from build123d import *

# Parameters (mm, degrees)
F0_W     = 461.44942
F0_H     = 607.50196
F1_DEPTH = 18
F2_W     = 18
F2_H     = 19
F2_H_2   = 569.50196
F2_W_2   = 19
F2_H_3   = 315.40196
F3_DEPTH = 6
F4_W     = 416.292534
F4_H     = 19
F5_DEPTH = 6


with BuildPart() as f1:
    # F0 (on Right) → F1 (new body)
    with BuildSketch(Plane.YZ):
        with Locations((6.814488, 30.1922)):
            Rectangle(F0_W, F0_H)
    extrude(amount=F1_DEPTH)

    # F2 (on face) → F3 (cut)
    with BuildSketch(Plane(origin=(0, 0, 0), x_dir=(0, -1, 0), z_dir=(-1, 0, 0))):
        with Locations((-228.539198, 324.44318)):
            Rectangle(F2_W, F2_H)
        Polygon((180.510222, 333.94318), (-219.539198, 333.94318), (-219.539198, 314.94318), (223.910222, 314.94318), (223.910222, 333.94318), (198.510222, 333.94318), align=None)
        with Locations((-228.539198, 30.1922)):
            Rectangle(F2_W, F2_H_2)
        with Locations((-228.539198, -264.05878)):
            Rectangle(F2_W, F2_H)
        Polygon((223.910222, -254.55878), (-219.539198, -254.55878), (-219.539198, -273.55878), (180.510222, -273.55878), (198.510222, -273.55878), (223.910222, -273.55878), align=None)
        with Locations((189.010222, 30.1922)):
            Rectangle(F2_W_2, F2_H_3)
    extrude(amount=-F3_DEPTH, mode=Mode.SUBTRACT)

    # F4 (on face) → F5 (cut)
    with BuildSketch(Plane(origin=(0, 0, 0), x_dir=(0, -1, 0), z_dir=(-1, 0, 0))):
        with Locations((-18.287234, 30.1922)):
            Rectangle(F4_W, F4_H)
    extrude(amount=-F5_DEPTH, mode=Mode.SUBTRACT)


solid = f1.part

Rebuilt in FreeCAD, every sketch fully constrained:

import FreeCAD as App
import Part
import Sketcher
Q = App.Units.Quantity


def add_polygon(sketch, points):
    """Adds a closed chain of lines whose ends are joined by coincident constraints."""
    first, n = sketch.GeometryCount, len(points)
    for a, b in zip(points, points[1:] + points[:1]):
        sketch.addGeometry(Part.LineSegment(App.Vector(*a, 0), App.Vector(*b, 0)), False)
    for i in range(n):
        sketch.addConstraint(Sketcher.Constraint("Coincident", first + i, 2, first + (i + 1) % n, 1))

doc = App.newDocument("Part")
body = doc.addObject("PartDesign::Body", "Body")

# Sketch on YZ plane
sketch1 = doc.addObject("Sketcher::SketchObject", "Sketch")
body.addObject(sketch1)
sketch1.AttachmentSupport = (doc.YZ_Plane, [""])
sketch1.MapMode = "FlatFace"
add_polygon(sketch1, [(-224, 334), (-224, -274), (238, -274), (238, 334)])  # lines 0-3
sketch1.addConstraint(Sketcher.Constraint("Vertical", 0))
sketch1.addConstraint(Sketcher.Constraint("Horizontal", 1))
sketch1.addConstraint(Sketcher.Constraint("Vertical", 2))
sketch1.addConstraint(Sketcher.Constraint("Horizontal", 3))
sketch1.addConstraint(Sketcher.Constraint("DistanceX", 1, 1, 1, 2, Q("461.44942 mm")))
sketch1.addConstraint(Sketcher.Constraint("DistanceY", 0, 2, 0, 1, Q("607.50196 mm")))
sketch1.addConstraint(Sketcher.Constraint("DistanceX", -1, 1, 1, 2, Q("237.539198 mm")))
sketch1.addConstraint(Sketcher.Constraint("DistanceY", 0, 2, -1, 1, Q("273.55878 mm")))
pad1 = doc.addObject("PartDesign::Pad", "Pad")
body.addObject(pad1)
pad1.Profile = sketch1
pad1.Length = 18

# Sketch on YZ plane
sketch2 = doc.addObject("Sketcher::SketchObject", "Sketch001")
body.addObject(sketch2)
sketch2.AttachmentSupport = (doc.YZ_Plane, [""])
sketch2.MapMode = "FlatFace"
add_polygon(sketch2, [(238, 334), (238, -274), (-224, -274), (-224, -255), (220, -255), (220, 315), (-224, 315), (-224, 334)])  # lines 0-7
add_polygon(sketch2, [(-180, 188), (-180, -128), (-199, -128), (-199, 188)])  # lines 8-11
sketch2.addConstraint(Sketcher.Constraint("Vertical", 0))
sketch2.addConstraint(Sketcher.Constraint("Horizontal", 1))
sketch2.addConstraint(Sketcher.Constraint("Vertical", 2))
sketch2.addConstraint(Sketcher.Constraint("Horizontal", 3))
sketch2.addConstraint(Sketcher.Constraint("Vertical", 4))
sketch2.addConstraint(Sketcher.Constraint("Horizontal", 5))
sketch2.addConstraint(Sketcher.Constraint("Vertical", 6))
sketch2.addConstraint(Sketcher.Constraint("Horizontal", 7))
sketch2.addConstraint(Sketcher.Constraint("Vertical", 8))
sketch2.addConstraint(Sketcher.Constraint("Horizontal", 9))
sketch2.addConstraint(Sketcher.Constraint("Vertical", 10))
sketch2.addConstraint(Sketcher.Constraint("Horizontal", 11))
sketch2.addConstraint(Sketcher.Constraint("Vertical", 2, 2, 5, 2))
sketch2.addConstraint(Sketcher.Constraint("Equal", 11, 2))
sketch2.addConstraint(Sketcher.Constraint("Equal", 2, 6))
sketch2.addConstraint(Sketcher.Constraint("DistanceX", 9, 2, 9, 1, Q("19 mm")))
sketch2.addConstraint(Sketcher.Constraint("DistanceX", 3, 2, 0, 2, Q("18 mm")))
sketch2.addConstraint(Sketcher.Constraint("DistanceX", 2, 2, 8, 2, Q("44.4 mm")))
sketch2.addConstraint(Sketcher.Constraint("DistanceY", 2, 2, 8, 2, Q("127.05 mm")))
sketch2.addConstraint(Sketcher.Constraint("DistanceY", 10, 2, 5, 2, Q("127.05 mm")))
sketch2.addConstraint(Sketcher.Constraint("DistanceX", 1, 2, 1, 1, Q("461.44942 mm")))
sketch2.addConstraint(Sketcher.Constraint("DistanceY", 0, 2, 0, 1, Q("607.50196 mm")))
sketch2.addConstraint(Sketcher.Constraint("DistanceX", -1, 1, 0, 2, Q("237.539198 mm")))
sketch2.addConstraint(Sketcher.Constraint("DistanceY", 0, 2, -1, 1, Q("273.55878 mm")))
pocket1 = doc.addObject("PartDesign::Pocket", "Pocket")
body.addObject(pocket1)
pocket1.Profile = sketch2
pocket1.Length = 6
pocket1.Reversed = True

# Sketch on YZ plane
sketch3 = doc.addObject("Sketcher::SketchObject", "Sketch002")
body.addObject(sketch3)
sketch3.AttachmentSupport = (doc.YZ_Plane, [""])
sketch3.MapMode = "FlatFace"
add_polygon(sketch3, [(226, 40), (226, 21), (-190, 21), (-190, 40)])  # lines 0-3
sketch3.addConstraint(Sketcher.Constraint("Vertical", 0))
sketch3.addConstraint(Sketcher.Constraint("Horizontal", 1))
sketch3.addConstraint(Sketcher.Constraint("Vertical", 2))
sketch3.addConstraint(Sketcher.Constraint("Horizontal", 3))
sketch3.addConstraint(Sketcher.Constraint("DistanceY", 0, 2, 0, 1, Q("19 mm")))
sketch3.addConstraint(Sketcher.Constraint("DistanceX", -1, 1, 0, 2, Q("226.433501 mm")))
sketch3.addConstraint(Sketcher.Constraint("DistanceY", -1, 1, 0, 2, Q("20.6922 mm")))
sketch3.addConstraint(Sketcher.Constraint("DistanceX", 1, 2, 1, 1, Q("416.292534 mm")))
pocket2 = doc.addObject("PartDesign::Pocket", "Pocket001")
body.addObject(pocket2)
pocket2.Profile = sketch3
pocket2.Length = 6
pocket2.Reversed = True

doc.recompute()
